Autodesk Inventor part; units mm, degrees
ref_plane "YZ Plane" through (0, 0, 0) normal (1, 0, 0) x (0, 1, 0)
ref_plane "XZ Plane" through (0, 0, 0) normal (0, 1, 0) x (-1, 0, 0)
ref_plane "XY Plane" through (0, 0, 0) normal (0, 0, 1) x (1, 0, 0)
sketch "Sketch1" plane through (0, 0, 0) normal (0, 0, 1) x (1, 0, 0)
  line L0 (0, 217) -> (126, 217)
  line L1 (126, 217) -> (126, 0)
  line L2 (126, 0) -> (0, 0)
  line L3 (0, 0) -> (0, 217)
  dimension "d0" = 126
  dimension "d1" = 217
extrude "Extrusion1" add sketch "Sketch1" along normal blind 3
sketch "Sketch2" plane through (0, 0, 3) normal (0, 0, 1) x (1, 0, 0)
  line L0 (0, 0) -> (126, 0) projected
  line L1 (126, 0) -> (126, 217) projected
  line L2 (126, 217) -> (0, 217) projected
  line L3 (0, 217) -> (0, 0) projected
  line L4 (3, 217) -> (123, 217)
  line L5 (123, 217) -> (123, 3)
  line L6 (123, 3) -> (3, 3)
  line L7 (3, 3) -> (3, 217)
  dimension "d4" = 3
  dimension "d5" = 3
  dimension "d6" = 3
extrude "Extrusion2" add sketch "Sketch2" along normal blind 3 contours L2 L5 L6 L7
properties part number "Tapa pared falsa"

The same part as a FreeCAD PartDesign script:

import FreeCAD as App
import Part
import Sketcher


def add_polygon(sketch, points):
    """Adds a closed chain of lines whose ends are joined by coincident constraints."""
    first, n = sketch.GeometryCount, len(points)
    for a, b in zip(points, points[1:] + points[:1]):
        sketch.addGeometry(Part.LineSegment(App.Vector(*a, 0), App.Vector(*b, 0)), False)
    for i in range(n):
        sketch.addConstraint(Sketcher.Constraint("Coincident", first + i, 2, first + (i + 1) % n, 1))

doc = App.newDocument("Part")
body = doc.addObject("PartDesign::Body", "Body")

# Sketch on XY plane
sketch1 = body.newObject("Sketcher::SketchObject", "Sketch")
sketch1.AttachmentSupport = (doc.getObject("XY_Plane"), [""])
sketch1.MapMode = "FlatFace"
add_polygon(sketch1, [(126, 217), (0, 217), (0, 0), (126, 0)])  # lines 0-3
sketch1.addConstraint([
    Sketcher.Constraint("Horizontal", 0),
    Sketcher.Constraint("Vertical", 1),
    Sketcher.Constraint("Horizontal", 2),
    Sketcher.Constraint("Vertical", 3),
    Sketcher.Constraint("Coincident", 1, 2, -1, 1),
    Sketcher.Constraint("DistanceX", 0, 2, 0, 1, 126.0),
    Sketcher.Constraint("DistanceY", 1, 2, 1, 1, 217.0),
])
pad1 = body.newObject("PartDesign::Pad", "Pad")
pad1.Profile = sketch1
pad1.Length = 3

# Sketch on XY plane
sketch2 = body.newObject("Sketcher::SketchObject", "Sketch001")
sketch2.AttachmentSupport = (doc.getObject("XY_Plane"), [""])
sketch2.MapMode = "FlatFace"
sketch2.AttachmentOffset = App.Placement(App.Vector(0, 0, 3), App.Rotation())
add_polygon(sketch2, [(123, 217), (3, 217), (3, 3), (123, 3)])  # lines 0-3
sketch2.addConstraint([
    Sketcher.Constraint("Horizontal", 0),
    Sketcher.Constraint("Vertical", 1),
    Sketcher.Constraint("Horizontal", 2),
    Sketcher.Constraint("Vertical", 3),
    Sketcher.Constraint("DistanceX", -1, 1, 0, 2, 3.0),
    Sketcher.Constraint("DistanceY", -1, 1, 1, 2, 3.0),
    Sketcher.Constraint("DistanceX", 0, 2, 0, 1, 120.0),
    Sketcher.Constraint("DistanceY", 1, 2, 1, 1, 214.0),
])
pad2 = body.newObject("PartDesign::Pad", "Pad001")
pad2.Profile = sketch2
pad2.Length = 3

doc.recompute()
